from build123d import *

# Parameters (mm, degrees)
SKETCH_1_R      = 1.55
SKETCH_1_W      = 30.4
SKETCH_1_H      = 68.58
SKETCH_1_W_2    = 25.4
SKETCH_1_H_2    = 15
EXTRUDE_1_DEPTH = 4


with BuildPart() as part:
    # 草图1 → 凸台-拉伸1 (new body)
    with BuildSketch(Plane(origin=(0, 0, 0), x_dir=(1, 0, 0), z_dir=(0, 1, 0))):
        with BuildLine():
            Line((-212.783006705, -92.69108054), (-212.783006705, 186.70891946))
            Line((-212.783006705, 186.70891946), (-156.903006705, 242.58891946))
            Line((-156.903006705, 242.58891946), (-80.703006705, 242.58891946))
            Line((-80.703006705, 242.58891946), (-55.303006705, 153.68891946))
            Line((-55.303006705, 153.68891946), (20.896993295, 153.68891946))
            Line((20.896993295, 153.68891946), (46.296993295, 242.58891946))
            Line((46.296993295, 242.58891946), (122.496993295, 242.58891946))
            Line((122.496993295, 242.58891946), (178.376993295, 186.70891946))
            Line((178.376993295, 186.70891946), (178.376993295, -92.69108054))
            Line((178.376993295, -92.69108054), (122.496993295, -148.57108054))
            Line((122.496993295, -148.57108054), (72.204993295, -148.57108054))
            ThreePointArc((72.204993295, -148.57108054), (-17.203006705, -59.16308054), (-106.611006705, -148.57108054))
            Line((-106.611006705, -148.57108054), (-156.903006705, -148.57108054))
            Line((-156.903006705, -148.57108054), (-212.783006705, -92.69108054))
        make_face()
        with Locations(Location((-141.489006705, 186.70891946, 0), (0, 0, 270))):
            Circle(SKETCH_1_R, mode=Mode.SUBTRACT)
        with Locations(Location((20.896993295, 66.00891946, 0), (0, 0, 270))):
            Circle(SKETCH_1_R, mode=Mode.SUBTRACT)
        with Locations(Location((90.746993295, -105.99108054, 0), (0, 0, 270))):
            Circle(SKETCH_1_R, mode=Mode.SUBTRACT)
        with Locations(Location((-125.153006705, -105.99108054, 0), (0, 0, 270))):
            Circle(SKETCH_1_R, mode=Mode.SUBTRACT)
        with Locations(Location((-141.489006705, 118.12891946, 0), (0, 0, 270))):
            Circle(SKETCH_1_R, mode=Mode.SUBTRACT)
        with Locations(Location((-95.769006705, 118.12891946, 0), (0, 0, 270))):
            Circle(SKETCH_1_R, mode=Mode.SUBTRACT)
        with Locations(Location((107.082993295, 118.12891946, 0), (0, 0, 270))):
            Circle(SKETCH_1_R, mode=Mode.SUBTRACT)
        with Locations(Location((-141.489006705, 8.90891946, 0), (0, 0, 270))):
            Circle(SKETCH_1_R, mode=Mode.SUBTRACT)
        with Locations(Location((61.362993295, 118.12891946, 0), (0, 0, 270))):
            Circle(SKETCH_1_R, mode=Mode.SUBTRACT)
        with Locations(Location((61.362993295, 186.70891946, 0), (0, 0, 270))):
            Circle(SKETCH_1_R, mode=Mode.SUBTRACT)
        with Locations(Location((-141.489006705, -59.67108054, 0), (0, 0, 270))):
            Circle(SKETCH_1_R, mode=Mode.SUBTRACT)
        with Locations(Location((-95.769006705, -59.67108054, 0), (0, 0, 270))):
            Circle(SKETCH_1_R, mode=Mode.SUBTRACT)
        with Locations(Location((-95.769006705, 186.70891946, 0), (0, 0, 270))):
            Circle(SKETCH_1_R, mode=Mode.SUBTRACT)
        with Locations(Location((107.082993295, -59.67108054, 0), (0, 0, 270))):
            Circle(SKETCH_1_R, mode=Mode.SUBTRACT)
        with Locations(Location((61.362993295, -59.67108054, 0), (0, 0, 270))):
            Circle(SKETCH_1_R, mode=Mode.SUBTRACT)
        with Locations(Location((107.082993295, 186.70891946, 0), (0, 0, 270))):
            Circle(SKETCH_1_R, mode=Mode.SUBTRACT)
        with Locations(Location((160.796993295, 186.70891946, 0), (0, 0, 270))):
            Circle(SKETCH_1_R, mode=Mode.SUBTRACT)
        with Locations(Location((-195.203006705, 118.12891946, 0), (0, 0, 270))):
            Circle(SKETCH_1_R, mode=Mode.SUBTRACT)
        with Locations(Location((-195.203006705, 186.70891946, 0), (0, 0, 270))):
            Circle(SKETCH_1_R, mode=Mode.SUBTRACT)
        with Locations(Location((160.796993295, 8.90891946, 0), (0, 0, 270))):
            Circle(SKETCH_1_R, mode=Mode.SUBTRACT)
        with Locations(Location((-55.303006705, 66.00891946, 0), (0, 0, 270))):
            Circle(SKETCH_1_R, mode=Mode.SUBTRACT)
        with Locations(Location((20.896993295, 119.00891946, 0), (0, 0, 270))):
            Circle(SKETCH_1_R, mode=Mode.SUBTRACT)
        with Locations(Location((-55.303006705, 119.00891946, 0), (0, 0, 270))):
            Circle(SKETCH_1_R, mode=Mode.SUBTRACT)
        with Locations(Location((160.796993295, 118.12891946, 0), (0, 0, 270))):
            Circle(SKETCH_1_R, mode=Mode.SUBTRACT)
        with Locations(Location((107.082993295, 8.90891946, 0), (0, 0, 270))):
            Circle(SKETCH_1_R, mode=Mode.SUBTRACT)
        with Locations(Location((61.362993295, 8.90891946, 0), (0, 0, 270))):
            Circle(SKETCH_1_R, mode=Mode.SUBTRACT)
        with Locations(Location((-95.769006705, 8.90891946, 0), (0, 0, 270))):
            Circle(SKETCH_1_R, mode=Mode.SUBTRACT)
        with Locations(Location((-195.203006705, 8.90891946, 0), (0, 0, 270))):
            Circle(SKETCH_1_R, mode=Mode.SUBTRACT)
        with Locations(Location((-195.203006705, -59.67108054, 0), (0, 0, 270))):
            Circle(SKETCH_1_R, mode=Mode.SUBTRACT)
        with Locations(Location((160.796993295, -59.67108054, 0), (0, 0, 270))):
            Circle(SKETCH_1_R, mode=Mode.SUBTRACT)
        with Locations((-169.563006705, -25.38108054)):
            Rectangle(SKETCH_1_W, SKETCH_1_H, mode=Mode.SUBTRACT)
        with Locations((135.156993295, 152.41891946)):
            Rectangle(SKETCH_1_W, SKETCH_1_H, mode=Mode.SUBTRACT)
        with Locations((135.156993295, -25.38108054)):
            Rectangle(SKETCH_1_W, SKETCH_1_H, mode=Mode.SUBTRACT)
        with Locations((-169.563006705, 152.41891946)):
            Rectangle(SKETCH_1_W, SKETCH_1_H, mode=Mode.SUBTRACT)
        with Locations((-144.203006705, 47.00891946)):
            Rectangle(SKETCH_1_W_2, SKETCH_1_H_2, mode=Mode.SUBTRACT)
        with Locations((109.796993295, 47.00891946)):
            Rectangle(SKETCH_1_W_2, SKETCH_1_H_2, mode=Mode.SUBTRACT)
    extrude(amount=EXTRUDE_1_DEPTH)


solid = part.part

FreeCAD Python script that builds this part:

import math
import FreeCAD as App
import Part
import Sketcher
Q = App.Units.Quantity

doc = App.newDocument("Part")
body = doc.addObject("PartDesign::Body", "Body")

# Sketch on XZ plane
sketch1 = doc.addObject("Sketcher::SketchObject", "Sketch")
body.addObject(sketch1)
sketch1.AttachmentSupport = (doc.XZ_Plane, [""])
sketch1.MapMode = "FlatFace"
sketch1.addGeometry([
    Part.LineSegment(App.Vector(-212.8, -186.7, 0), App.Vector(-212.8, 92.7, 0)),  # 0
    Part.LineSegment(App.Vector(-212.8, 92.7, 0), App.Vector(-156.9, 148.6, 0)),  # 1
    Part.LineSegment(App.Vector(-156.9, 148.6, 0), App.Vector(-106.6, 148.6, 0)),  # 2
    Part.ArcOfCircle(Part.Circle(App.Vector(-17.2, 148.6, 0), App.Vector(0, 0, 1), 89.4), math.radians(180), math.radians(360)),  # 3
    Part.LineSegment(App.Vector(72.2, 148.6, 0), App.Vector(122.5, 148.6, 0)),  # 4
    Part.LineSegment(App.Vector(122.5, 148.6, 0), App.Vector(178.4, 92.7, 0)),  # 5
    Part.LineSegment(App.Vector(178.4, 92.7, 0), App.Vector(178.4, -186.7, 0)),  # 6
    Part.LineSegment(App.Vector(178.4, -186.7, 0), App.Vector(122.5, -242.6, 0)),  # 7
    Part.LineSegment(App.Vector(122.5, -242.6, 0), App.Vector(46.3, -242.6, 0)),  # 8
    Part.LineSegment(App.Vector(46.3, -242.6, 0), App.Vector(20.9, -153.7, 0)),  # 9
    Part.LineSegment(App.Vector(20.9, -153.7, 0), App.Vector(-55.3, -153.7, 0)),  # 10
    Part.LineSegment(App.Vector(-55.3, -153.7, 0), App.Vector(-80.7, -242.6, 0)),  # 11
    Part.LineSegment(App.Vector(-80.7, -242.6, 0), App.Vector(-156.9, -242.6, 0)),  # 12
    Part.LineSegment(App.Vector(-156.9, -242.6, 0), App.Vector(-212.8, -186.7, 0)),  # 13
    Part.Circle(App.Vector(90.7, 106, 0), App.Vector(0, 0, 1), 1.6),  # 14
    Part.Circle(App.Vector(160.8, 59.7, 0), App.Vector(0, 0, 1), 1.6),  # 15
    Part.Circle(App.Vector(107.1, 59.7, 0), App.Vector(0, 0, 1), 1.6),  # 16
    Part.Circle(App.Vector(61.4, 59.7, 0), App.Vector(0, 0, 1), 1.6),  # 17
    Part.LineSegment(App.Vector(120, 59.7, 0), App.Vector(120, -8.9, 0)),  # 18
    Part.LineSegment(App.Vector(120, -8.9, 0), App.Vector(150.4, -8.9, 0)),  # 19
    Part.LineSegment(App.Vector(150.4, -8.9, 0), App.Vector(150.4, 59.7, 0)),  # 20
    Part.LineSegment(App.Vector(150.4, 59.7, 0), App.Vector(120, 59.7, 0)),  # 21
    Part.Circle(App.Vector(160.8, -8.9, 0), App.Vector(0, 0, 1), 1.6),  # 22
    Part.Circle(App.Vector(107.1, -8.9, 0), App.Vector(0, 0, 1), 1.6),  # 23
    Part.Circle(App.Vector(61.4, -8.9, 0), App.Vector(0, 0, 1), 1.6),  # 24
    Part.Circle(App.Vector(-95.8, 59.7, 0), App.Vector(0, 0, 1), 1.6),  # 25
    Part.Circle(App.Vector(-125.2, 106, 0), App.Vector(0, 0, 1), 1.6),  # 26
    Part.Circle(App.Vector(-141.5, 59.7, 0), App.Vector(0, 0, 1), 1.6),  # 27
    Part.Circle(App.Vector(-195.2, 59.7, 0), App.Vector(0, 0, 1), 1.6),  # 28
    Part.Circle(App.Vector(-95.8, -8.9, 0), App.Vector(0, 0, 1), 1.6),  # 29
    Part.LineSegment(App.Vector(-184.8, 59.7, 0), App.Vector(-184.8, -8.9, 0)),  # 30
    Part.LineSegment(App.Vector(-184.8, -8.9, 0), App.Vector(-154.4, -8.9, 0)),  # 31
    Part.LineSegment(App.Vector(-154.4, -8.9, 0), App.Vector(-154.4, 59.7, 0)),  # 32
    Part.LineSegment(App.Vector(-154.4, 59.7, 0), App.Vector(-184.8, 59.7, 0)),  # 33
    Part.Circle(App.Vector(-141.5, -8.9, 0), App.Vector(0, 0, 1), 1.6),  # 34
    Part.Circle(App.Vector(-195.2, -8.9, 0), App.Vector(0, 0, 1), 1.6),  # 35
    Part.LineSegment(App.Vector(97.1, -39.5, 0), App.Vector(97.1, -54.5, 0)),  # 36
    Part.LineSegment(App.Vector(97.1, -54.5, 0), App.Vector(122.5, -54.5, 0)),  # 37
    Part.LineSegment(App.Vector(122.5, -54.5, 0), App.Vector(122.5, -39.5, 0)),  # 38
    Part.LineSegment(App.Vector(122.5, -39.5, 0), App.Vector(97.1, -39.5, 0)),  # 39
    Part.Circle(App.Vector(20.9, -66, 0), App.Vector(0, 0, 1), 1.6),  # 40
    Part.Circle(App.Vector(160.8, -118.1, 0), App.Vector(0, 0, 1), 1.6),  # 41
    Part.Circle(App.Vector(107.1, -118.1, 0), App.Vector(0, 0, 1), 1.6),  # 42
    Part.LineSegment(App.Vector(120, -118.1, 0), App.Vector(120, -186.7, 0)),  # 43
    Part.LineSegment(App.Vector(120, -186.7, 0), App.Vector(150.4, -186.7, 0)),  # 44
    Part.LineSegment(App.Vector(150.4, -186.7, 0), App.Vector(150.4, -118.1, 0)),  # 45
    Part.LineSegment(App.Vector(150.4, -118.1, 0), App.Vector(120, -118.1, 0)),  # 46
    Part.Circle(App.Vector(160.8, -186.7, 0), App.Vector(0, 0, 1), 1.6),  # 47
    Part.Circle(App.Vector(107.1, -186.7, 0), App.Vector(0, 0, 1), 1.6),  # 48
    Part.Circle(App.Vector(61.4, -118.1, 0), App.Vector(0, 0, 1), 1.6),  # 49
    Part.Circle(App.Vector(20.9, -119, 0), App.Vector(0, 0, 1), 1.6),  # 50
    Part.Circle(App.Vector(61.4, -186.7, 0), App.Vector(0, 0, 1), 1.6),  # 51
    Part.Circle(App.Vector(-55.3, -66, 0), App.Vector(0, 0, 1), 1.6),  # 52
    Part.LineSegment(App.Vector(-156.9, -39.5, 0), App.Vector(-156.9, -54.5, 0)),  # 53
    Part.LineSegment(App.Vector(-156.9, -54.5, 0), App.Vector(-131.5, -54.5, 0)),  # 54
    Part.LineSegment(App.Vector(-131.5, -54.5, 0), App.Vector(-131.5, -39.5, 0)),  # 55
    Part.LineSegment(App.Vector(-131.5, -39.5, 0), App.Vector(-156.9, -39.5, 0)),  # 56
    Part.Circle(App.Vector(-55.3, -119, 0), App.Vector(0, 0, 1), 1.6),  # 57
    Part.Circle(App.Vector(-95.8, -118.1, 0), App.Vector(0, 0, 1), 1.6),  # 58
    Part.Circle(App.Vector(-95.8, -186.7, 0), App.Vector(0, 0, 1), 1.6),  # 59
    Part.Circle(App.Vector(-141.5, -118.1, 0), App.Vector(0, 0, 1), 1.6),  # 60
    Part.Circle(App.Vector(-195.2, -118.1, 0), App.Vector(0, 0, 1), 1.6),  # 61
    Part.Circle(App.Vector(-141.5, -186.7, 0), App.Vector(0, 0, 1), 1.6),  # 62
    Part.LineSegment(App.Vector(-184.8, -118.1, 0), App.Vector(-184.8, -186.7, 0)),  # 63
    Part.LineSegment(App.Vector(-184.8, -186.7, 0), App.Vector(-154.4, -186.7, 0)),  # 64
    Part.LineSegment(App.Vector(-154.4, -186.7, 0), App.Vector(-154.4, -118.1, 0)),  # 65
    Part.LineSegment(App.Vector(-154.4, -118.1, 0), App.Vector(-184.8, -118.1, 0)),  # 66
    Part.Circle(App.Vector(-195.2, -186.7, 0), App.Vector(0, 0, 1), 1.6),  # 67
], False)
sketch1.addConstraint([
    Sketcher.Constraint("Coincident", 0, 2, 1, 1),
    Sketcher.Constraint("Coincident", 1, 2, 2, 1),
    Sketcher.Constraint("Coincident", 2, 2, 3, 1),
    Sketcher.Constraint("Coincident", 3, 2, 4, 1),
    Sketcher.Constraint("Coincident", 4, 2, 5, 1),
    Sketcher.Constraint("Coincident", 5, 2, 6, 1),
    Sketcher.Constraint("Coincident", 6, 2, 7, 1),
    Sketcher.Constraint("Coincident", 7, 2, 8, 1),
    Sketcher.Constraint("Coincident", 8, 2, 9, 1),
    Sketcher.Constraint("Coincident", 9, 2, 10, 1),
    Sketcher.Constraint("Coincident", 10, 2, 11, 1),
    Sketcher.Constraint("Coincident", 11, 2, 12, 1),
    Sketcher.Constraint("Coincident", 12, 2, 13, 1),
    Sketcher.Constraint("Coincident", 13, 2, 0, 1),
    Sketcher.Constraint("Coincident", 18, 2, 19, 1),
    Sketcher.Constraint("Coincident", 19, 2, 20, 1),
    Sketcher.Constraint("Coincident", 20, 2, 21, 1),
    Sketcher.Constraint("Coincident", 21, 2, 18, 1),
    Sketcher.Constraint("Coincident", 30, 2, 31, 1),
    Sketcher.Constraint("Coincident", 31, 2, 32, 1),
    Sketcher.Constraint("Coincident", 32, 2, 33, 1),
    Sketcher.Constraint("Coincident", 33, 2, 30, 1),
    Sketcher.Constraint("Coincident", 36, 2, 37, 1),
    Sketcher.Constraint("Coincident", 37, 2, 38, 1),
    Sketcher.Constraint("Coincident", 38, 2, 39, 1),
    Sketcher.Constraint("Coincident", 39, 2, 36, 1),
    Sketcher.Constraint("Coincident", 43, 2, 44, 1),
    Sketcher.Constraint("Coincident", 44, 2, 45, 1),
    Sketcher.Constraint("Coincident", 45, 2, 46, 1),
    Sketcher.Constraint("Coincident", 46, 2, 43, 1),
    Sketcher.Constraint("Coincident", 53, 2, 54, 1),
    Sketcher.Constraint("Coincident", 54, 2, 55, 1),
    Sketcher.Constraint("Coincident", 55, 2, 56, 1),
    Sketcher.Constraint("Coincident", 56, 2, 53, 1),
    Sketcher.Constraint("Coincident", 63, 2, 64, 1),
    Sketcher.Constraint("Coincident", 64, 2, 65, 1),
    Sketcher.Constraint("Coincident", 65, 2, 66, 1),
    Sketcher.Constraint("Coincident", 66, 2, 63, 1),
    Sketcher.Constraint("Vertical", 0),
    Sketcher.Constraint("Horizontal", 2),
    Sketcher.Constraint("Horizontal", 4),
    Sketcher.Constraint("Vertical", 6),
    Sketcher.Constraint("Horizontal", 8),
    Sketcher.Constraint("Horizontal", 10),
    Sketcher.Constraint("Horizontal", 12),
    Sketcher.Constraint("Vertical", 18),
    Sketcher.Constraint("Horizontal", 19),
    Sketcher.Constraint("Vertical", 20),
    Sketcher.Constraint("Horizontal", 21),
    Sketcher.Constraint("Vertical", 30),
    Sketcher.Constraint("Horizontal", 31),
    Sketcher.Constraint("Vertical", 32),
    Sketcher.Constraint("Horizontal", 33),
    Sketcher.Constraint("Vertical", 36),
    Sketcher.Constraint("Horizontal", 37),
    Sketcher.Constraint("Vertical", 38),
    Sketcher.Constraint("Horizontal", 39),
    Sketcher.Constraint("Vertical", 43),
    Sketcher.Constraint("Horizontal", 44),
    Sketcher.Constraint("Vertical", 45),
    Sketcher.Constraint("Horizontal", 46),
    Sketcher.Constraint("Vertical", 53),
    Sketcher.Constraint("Horizontal", 54),
    Sketcher.Constraint("Vertical", 55),
    Sketcher.Constraint("Horizontal", 56),
    Sketcher.Constraint("Vertical", 63),
    Sketcher.Constraint("Horizontal", 64),
    Sketcher.Constraint("Vertical", 65),
    Sketcher.Constraint("Horizontal", 66),
    Sketcher.Constraint("Equal", 14, 15),
    Sketcher.Constraint("Equal", 15, 16),
    Sketcher.Constraint("Equal", 16, 17),
    Sketcher.Constraint("Equal", 17, 22),
    Sketcher.Constraint("Equal", 22, 23),
    Sketcher.Constraint("Equal", 23, 24),
    Sketcher.Constraint("Equal", 24, 25),
    Sketcher.Constraint("Equal", 25, 26),
    Sketcher.Constraint("Equal", 26, 27),
    Sketcher.Constraint("Equal", 27, 28),
    Sketcher.Constraint("Equal", 28, 29),
    Sketcher.Constraint("Equal", 29, 34),
    Sketcher.Constraint("Equal", 34, 35),
    Sketcher.Constraint("Equal", 35, 40),
    Sketcher.Constraint("Equal", 40, 41),
    Sketcher.Constraint("Equal", 41, 42),
    Sketcher.Constraint("Equal", 42, 47),
    Sketcher.Constraint("Equal", 47, 48),
    Sketcher.Constraint("Equal", 48, 49),
    Sketcher.Constraint("Equal", 49, 50),
    Sketcher.Constraint("Equal", 50, 51),
    Sketcher.Constraint("Equal", 51, 52),
    Sketcher.Constraint("Equal", 52, 57),
    Sketcher.Constraint("Equal", 57, 58),
    Sketcher.Constraint("Equal", 58, 59),
    Sketcher.Constraint("Equal", 59, 60),
    Sketcher.Constraint("Equal", 60, 61),
    Sketcher.Constraint("Equal", 61, 62),
    Sketcher.Constraint("Equal", 62, 67),
    Sketcher.Constraint("Perpendicular", 1, 5),
    Sketcher.Constraint("Perpendicular", 5, 7),
    Sketcher.Constraint("Perpendicular", 7, 13),
    Sketcher.Constraint("Horizontal", 15, 3, 16, 3),
    Sketcher.Constraint("Horizontal", 16, 3, 17, 3),
    Sketcher.Constraint("Horizontal", 22, 3, 23, 3),
    Sketcher.Constraint("Horizontal", 23, 3, 24, 3),
    Sketcher.Constraint("Horizontal", 17, 3, 25, 3),
    Sketcher.Constraint("Horizontal", 14, 3, 26, 3),
    Sketcher.Constraint("Horizontal", 25, 3, 27, 3),
    Sketcher.Constraint("Horizontal", 27, 3, 28, 3),
    Sketcher.Constraint("Horizontal", 24, 3, 29, 3),
    Sketcher.Constraint("Horizontal", 29, 3, 34, 3),
    Sketcher.Constraint("Horizontal", 34, 3, 35, 3),
    Sketcher.Constraint("Horizontal", 41, 3, 42, 3),
    Sketcher.Constraint("Horizontal", 47, 3, 48, 3),
    Sketcher.Constraint("Horizontal", 42, 3, 49, 3),
    Sketcher.Constraint("Horizontal", 48, 3, 51, 3),
    Sketcher.Constraint("Horizontal", 40, 3, 52, 3),
    Sketcher.Constraint("Horizontal", 50, 3, 57, 3),
    Sketcher.Constraint("Horizontal", 49, 3, 58, 3),
    Sketcher.Constraint("Horizontal", 51, 3, 59, 3),
    Sketcher.Constraint("Horizontal", 58, 3, 60, 3),
    Sketcher.Constraint("Horizontal", 60, 3, 61, 3),
    Sketcher.Constraint("Horizontal", 59, 3, 62, 3),
    Sketcher.Constraint("Horizontal", 62, 3, 67, 3),
    Sketcher.Constraint("Horizontal", 3, 3, 1, 2),
    Sketcher.Constraint("Horizontal", 2, 2, 3, 2),
    Sketcher.Constraint("Horizontal", 0, 2, 5, 2),
    Sketcher.Constraint("Horizontal", 67, 3, 6, 2),
    Sketcher.Constraint("Horizontal", 8, 2, 11, 2),
    Sketcher.Constraint("Horizontal", 6, 2, 13, 2),
    Sketcher.Constraint("Horizontal", 35, 3, 18, 2),
    Sketcher.Constraint("Horizontal", 28, 3, 20, 2),
    Sketcher.Constraint("Horizontal", 19, 2, 30, 2),
    Sketcher.Constraint("Horizontal", 21, 2, 32, 2),
    Sketcher.Constraint("Horizontal", 13, 2, 43, 2),
    Sketcher.Constraint("Horizontal", 61, 3, 45, 2),
    Sketcher.Constraint("Horizontal", 37, 2, 53, 2),
    Sketcher.Constraint("Horizontal", 39, 2, 55, 2),
    Sketcher.Constraint("Horizontal", 44, 2, 63, 2),
    Sketcher.Constraint("Horizontal", 46, 2, 65, 2),
    Sketcher.Constraint("Vertical", 15, 3, 22, 3),
    Sketcher.Constraint("Vertical", 16, 3, 23, 3),
    Sketcher.Constraint("Vertical", 17, 3, 24, 3),
    Sketcher.Constraint("Vertical", 25, 3, 29, 3),
    Sketcher.Constraint("Vertical", 27, 3, 34, 3),
    Sketcher.Constraint("Vertical", 28, 3, 35, 3),
    Sketcher.Constraint("Vertical", 22, 3, 41, 3),
    Sketcher.Constraint("Vertical", 23, 3, 42, 3),
    Sketcher.Constraint("Vertical", 41, 3, 47, 3),
    Sketcher.Constraint("Vertical", 42, 3, 48, 3),
    Sketcher.Constraint("Vertical", 24, 3, 49, 3),
    Sketcher.Constraint("Vertical", 40, 3, 50, 3),
    Sketcher.Constraint("Vertical", 49, 3, 51, 3),
    Sketcher.Constraint("Vertical", 52, 3, 57, 3),
    Sketcher.Constraint("Vertical", 29, 3, 58, 3),
    Sketcher.Constraint("Vertical", 58, 3, 59, 3),
    Sketcher.Constraint("Vertical", 34, 3, 60, 3),
    Sketcher.Constraint("Vertical", 35, 3, 61, 3),
    Sketcher.Constraint("Vertical", 60, 3, 62, 3),
    Sketcher.Constraint("Vertical", 61, 3, 67, 3),
    Sketcher.Constraint("Vertical", 4, 2, 7, 2),
    Sketcher.Constraint("Vertical", 50, 3, 9, 2),
    Sketcher.Constraint("Vertical", 57, 3, 10, 2),
    Sketcher.Constraint("Vertical", 1, 2, 12, 2),
    Sketcher.Constraint("Vertical", 7, 2, 37, 2),
    Sketcher.Constraint("Vertical", 21, 2, 43, 2),
    Sketcher.Constraint("Vertical", 20, 2, 44, 2),
    Sketcher.Constraint("Vertical", 12, 2, 53, 2),
    Sketcher.Constraint("Vertical", 33, 2, 63, 2),
    Sketcher.Constraint("Vertical", 32, 2, 64, 2),
    Sketcher.Constraint("Equal", 2, 4),
    Sketcher.Constraint("Equal", 8, 10),
    Sketcher.Constraint("Equal", 10, 12),
    Sketcher.Constraint("Equal", 21, 31),
    Sketcher.Constraint("Equal", 39, 54),
    Sketcher.Constraint("Equal", 32, 43),
    Sketcher.Constraint("Equal", 9, 11),
    Sketcher.Constraint("DistanceX", 8, 2, 8, 1, Q("3 in")),
    Sketcher.Constraint("DistanceX", 37, 1, 37, 2, Q("1 in")),
    Sketcher.Constraint("DistanceY", 0, 1, 0, 2, Q("11 in")),
    Sketcher.Constraint("Radius", 3, Q("3.52 in")),
    Sketcher.Constraint("DistanceY", 18, 2, 18, 1, Q("2.7 in")),
    Sketcher.Constraint("DistanceX", 2, 1, 2, 2, Q("1.98 in")),
    Sketcher.Constraint("Diameter", 14, Q("3.1 mm")),
    Sketcher.Constraint("DistanceX", 19, 1, 19, 2, Q("30.4 mm")),
    Sketcher.Constraint("DistanceY", 36, 2, 36, 1, Q("15 mm")),
    Sketcher.Constraint("DistanceY", -1, 1, 3, 3, Q("148.571081 mm")),
    Sketcher.Constraint("DistanceY", -1, 1, 14, 3, Q("105.991081 mm")),
    Sketcher.Constraint("DistanceY", -1, 1, 15, 3, Q("59.671081 mm")),
    Sketcher.Constraint("DistanceY", 40, 3, -1, 1, Q("66.008919 mm")),
    Sketcher.Constraint("DistanceY", 41, 3, -1, 1, Q("118.128919 mm")),
    Sketcher.Constraint("DistanceY", 50, 3, -1, 1, Q("119.008919 mm")),
    Sketcher.Constraint("DistanceY", 9, 2, -1, 1, Q("153.688919 mm")),
    Sketcher.Constraint("DistanceY", 36, 2, -1, 1, Q("54.508919 mm")),
    Sketcher.Constraint("DistanceX", 3, 3, -1, 1, Q("17.203007 mm")),
    Sketcher.Constraint("DistanceX", -1, 1, 14, 3, Q("90.746993 mm")),
    Sketcher.Constraint("DistanceX", -1, 1, 15, 3, Q("160.796993 mm")),
    Sketcher.Constraint("DistanceX", -1, 1, 16, 3, Q("107.082993 mm")),
    Sketcher.Constraint("DistanceX", -1, 1, 17, 3, Q("61.362993 mm")),
    Sketcher.Constraint("DistanceX", 25, 3, -1, 1, Q("95.769007 mm")),
    Sketcher.Constraint("DistanceX", 26, 3, -1, 1, Q("125.153007 mm")),
    Sketcher.Constraint("DistanceX", 27, 3, -1, 1, Q("141.489007 mm")),
    Sketcher.Constraint("DistanceX", 28, 3, -1, 1, Q("195.203007 mm")),
    Sketcher.Constraint("DistanceX", -1, 1, 18, 2, Q("119.956993 mm")),
    Sketcher.Constraint("DistanceX", 30, 2, -1, 1, Q("184.763007 mm")),
])
pad1 = doc.addObject("PartDesign::Pad", "Pad")
body.addObject(pad1)
pad1.Profile = sketch1
pad1.Length = 4
pad1.Reversed = True

doc.recompute()
